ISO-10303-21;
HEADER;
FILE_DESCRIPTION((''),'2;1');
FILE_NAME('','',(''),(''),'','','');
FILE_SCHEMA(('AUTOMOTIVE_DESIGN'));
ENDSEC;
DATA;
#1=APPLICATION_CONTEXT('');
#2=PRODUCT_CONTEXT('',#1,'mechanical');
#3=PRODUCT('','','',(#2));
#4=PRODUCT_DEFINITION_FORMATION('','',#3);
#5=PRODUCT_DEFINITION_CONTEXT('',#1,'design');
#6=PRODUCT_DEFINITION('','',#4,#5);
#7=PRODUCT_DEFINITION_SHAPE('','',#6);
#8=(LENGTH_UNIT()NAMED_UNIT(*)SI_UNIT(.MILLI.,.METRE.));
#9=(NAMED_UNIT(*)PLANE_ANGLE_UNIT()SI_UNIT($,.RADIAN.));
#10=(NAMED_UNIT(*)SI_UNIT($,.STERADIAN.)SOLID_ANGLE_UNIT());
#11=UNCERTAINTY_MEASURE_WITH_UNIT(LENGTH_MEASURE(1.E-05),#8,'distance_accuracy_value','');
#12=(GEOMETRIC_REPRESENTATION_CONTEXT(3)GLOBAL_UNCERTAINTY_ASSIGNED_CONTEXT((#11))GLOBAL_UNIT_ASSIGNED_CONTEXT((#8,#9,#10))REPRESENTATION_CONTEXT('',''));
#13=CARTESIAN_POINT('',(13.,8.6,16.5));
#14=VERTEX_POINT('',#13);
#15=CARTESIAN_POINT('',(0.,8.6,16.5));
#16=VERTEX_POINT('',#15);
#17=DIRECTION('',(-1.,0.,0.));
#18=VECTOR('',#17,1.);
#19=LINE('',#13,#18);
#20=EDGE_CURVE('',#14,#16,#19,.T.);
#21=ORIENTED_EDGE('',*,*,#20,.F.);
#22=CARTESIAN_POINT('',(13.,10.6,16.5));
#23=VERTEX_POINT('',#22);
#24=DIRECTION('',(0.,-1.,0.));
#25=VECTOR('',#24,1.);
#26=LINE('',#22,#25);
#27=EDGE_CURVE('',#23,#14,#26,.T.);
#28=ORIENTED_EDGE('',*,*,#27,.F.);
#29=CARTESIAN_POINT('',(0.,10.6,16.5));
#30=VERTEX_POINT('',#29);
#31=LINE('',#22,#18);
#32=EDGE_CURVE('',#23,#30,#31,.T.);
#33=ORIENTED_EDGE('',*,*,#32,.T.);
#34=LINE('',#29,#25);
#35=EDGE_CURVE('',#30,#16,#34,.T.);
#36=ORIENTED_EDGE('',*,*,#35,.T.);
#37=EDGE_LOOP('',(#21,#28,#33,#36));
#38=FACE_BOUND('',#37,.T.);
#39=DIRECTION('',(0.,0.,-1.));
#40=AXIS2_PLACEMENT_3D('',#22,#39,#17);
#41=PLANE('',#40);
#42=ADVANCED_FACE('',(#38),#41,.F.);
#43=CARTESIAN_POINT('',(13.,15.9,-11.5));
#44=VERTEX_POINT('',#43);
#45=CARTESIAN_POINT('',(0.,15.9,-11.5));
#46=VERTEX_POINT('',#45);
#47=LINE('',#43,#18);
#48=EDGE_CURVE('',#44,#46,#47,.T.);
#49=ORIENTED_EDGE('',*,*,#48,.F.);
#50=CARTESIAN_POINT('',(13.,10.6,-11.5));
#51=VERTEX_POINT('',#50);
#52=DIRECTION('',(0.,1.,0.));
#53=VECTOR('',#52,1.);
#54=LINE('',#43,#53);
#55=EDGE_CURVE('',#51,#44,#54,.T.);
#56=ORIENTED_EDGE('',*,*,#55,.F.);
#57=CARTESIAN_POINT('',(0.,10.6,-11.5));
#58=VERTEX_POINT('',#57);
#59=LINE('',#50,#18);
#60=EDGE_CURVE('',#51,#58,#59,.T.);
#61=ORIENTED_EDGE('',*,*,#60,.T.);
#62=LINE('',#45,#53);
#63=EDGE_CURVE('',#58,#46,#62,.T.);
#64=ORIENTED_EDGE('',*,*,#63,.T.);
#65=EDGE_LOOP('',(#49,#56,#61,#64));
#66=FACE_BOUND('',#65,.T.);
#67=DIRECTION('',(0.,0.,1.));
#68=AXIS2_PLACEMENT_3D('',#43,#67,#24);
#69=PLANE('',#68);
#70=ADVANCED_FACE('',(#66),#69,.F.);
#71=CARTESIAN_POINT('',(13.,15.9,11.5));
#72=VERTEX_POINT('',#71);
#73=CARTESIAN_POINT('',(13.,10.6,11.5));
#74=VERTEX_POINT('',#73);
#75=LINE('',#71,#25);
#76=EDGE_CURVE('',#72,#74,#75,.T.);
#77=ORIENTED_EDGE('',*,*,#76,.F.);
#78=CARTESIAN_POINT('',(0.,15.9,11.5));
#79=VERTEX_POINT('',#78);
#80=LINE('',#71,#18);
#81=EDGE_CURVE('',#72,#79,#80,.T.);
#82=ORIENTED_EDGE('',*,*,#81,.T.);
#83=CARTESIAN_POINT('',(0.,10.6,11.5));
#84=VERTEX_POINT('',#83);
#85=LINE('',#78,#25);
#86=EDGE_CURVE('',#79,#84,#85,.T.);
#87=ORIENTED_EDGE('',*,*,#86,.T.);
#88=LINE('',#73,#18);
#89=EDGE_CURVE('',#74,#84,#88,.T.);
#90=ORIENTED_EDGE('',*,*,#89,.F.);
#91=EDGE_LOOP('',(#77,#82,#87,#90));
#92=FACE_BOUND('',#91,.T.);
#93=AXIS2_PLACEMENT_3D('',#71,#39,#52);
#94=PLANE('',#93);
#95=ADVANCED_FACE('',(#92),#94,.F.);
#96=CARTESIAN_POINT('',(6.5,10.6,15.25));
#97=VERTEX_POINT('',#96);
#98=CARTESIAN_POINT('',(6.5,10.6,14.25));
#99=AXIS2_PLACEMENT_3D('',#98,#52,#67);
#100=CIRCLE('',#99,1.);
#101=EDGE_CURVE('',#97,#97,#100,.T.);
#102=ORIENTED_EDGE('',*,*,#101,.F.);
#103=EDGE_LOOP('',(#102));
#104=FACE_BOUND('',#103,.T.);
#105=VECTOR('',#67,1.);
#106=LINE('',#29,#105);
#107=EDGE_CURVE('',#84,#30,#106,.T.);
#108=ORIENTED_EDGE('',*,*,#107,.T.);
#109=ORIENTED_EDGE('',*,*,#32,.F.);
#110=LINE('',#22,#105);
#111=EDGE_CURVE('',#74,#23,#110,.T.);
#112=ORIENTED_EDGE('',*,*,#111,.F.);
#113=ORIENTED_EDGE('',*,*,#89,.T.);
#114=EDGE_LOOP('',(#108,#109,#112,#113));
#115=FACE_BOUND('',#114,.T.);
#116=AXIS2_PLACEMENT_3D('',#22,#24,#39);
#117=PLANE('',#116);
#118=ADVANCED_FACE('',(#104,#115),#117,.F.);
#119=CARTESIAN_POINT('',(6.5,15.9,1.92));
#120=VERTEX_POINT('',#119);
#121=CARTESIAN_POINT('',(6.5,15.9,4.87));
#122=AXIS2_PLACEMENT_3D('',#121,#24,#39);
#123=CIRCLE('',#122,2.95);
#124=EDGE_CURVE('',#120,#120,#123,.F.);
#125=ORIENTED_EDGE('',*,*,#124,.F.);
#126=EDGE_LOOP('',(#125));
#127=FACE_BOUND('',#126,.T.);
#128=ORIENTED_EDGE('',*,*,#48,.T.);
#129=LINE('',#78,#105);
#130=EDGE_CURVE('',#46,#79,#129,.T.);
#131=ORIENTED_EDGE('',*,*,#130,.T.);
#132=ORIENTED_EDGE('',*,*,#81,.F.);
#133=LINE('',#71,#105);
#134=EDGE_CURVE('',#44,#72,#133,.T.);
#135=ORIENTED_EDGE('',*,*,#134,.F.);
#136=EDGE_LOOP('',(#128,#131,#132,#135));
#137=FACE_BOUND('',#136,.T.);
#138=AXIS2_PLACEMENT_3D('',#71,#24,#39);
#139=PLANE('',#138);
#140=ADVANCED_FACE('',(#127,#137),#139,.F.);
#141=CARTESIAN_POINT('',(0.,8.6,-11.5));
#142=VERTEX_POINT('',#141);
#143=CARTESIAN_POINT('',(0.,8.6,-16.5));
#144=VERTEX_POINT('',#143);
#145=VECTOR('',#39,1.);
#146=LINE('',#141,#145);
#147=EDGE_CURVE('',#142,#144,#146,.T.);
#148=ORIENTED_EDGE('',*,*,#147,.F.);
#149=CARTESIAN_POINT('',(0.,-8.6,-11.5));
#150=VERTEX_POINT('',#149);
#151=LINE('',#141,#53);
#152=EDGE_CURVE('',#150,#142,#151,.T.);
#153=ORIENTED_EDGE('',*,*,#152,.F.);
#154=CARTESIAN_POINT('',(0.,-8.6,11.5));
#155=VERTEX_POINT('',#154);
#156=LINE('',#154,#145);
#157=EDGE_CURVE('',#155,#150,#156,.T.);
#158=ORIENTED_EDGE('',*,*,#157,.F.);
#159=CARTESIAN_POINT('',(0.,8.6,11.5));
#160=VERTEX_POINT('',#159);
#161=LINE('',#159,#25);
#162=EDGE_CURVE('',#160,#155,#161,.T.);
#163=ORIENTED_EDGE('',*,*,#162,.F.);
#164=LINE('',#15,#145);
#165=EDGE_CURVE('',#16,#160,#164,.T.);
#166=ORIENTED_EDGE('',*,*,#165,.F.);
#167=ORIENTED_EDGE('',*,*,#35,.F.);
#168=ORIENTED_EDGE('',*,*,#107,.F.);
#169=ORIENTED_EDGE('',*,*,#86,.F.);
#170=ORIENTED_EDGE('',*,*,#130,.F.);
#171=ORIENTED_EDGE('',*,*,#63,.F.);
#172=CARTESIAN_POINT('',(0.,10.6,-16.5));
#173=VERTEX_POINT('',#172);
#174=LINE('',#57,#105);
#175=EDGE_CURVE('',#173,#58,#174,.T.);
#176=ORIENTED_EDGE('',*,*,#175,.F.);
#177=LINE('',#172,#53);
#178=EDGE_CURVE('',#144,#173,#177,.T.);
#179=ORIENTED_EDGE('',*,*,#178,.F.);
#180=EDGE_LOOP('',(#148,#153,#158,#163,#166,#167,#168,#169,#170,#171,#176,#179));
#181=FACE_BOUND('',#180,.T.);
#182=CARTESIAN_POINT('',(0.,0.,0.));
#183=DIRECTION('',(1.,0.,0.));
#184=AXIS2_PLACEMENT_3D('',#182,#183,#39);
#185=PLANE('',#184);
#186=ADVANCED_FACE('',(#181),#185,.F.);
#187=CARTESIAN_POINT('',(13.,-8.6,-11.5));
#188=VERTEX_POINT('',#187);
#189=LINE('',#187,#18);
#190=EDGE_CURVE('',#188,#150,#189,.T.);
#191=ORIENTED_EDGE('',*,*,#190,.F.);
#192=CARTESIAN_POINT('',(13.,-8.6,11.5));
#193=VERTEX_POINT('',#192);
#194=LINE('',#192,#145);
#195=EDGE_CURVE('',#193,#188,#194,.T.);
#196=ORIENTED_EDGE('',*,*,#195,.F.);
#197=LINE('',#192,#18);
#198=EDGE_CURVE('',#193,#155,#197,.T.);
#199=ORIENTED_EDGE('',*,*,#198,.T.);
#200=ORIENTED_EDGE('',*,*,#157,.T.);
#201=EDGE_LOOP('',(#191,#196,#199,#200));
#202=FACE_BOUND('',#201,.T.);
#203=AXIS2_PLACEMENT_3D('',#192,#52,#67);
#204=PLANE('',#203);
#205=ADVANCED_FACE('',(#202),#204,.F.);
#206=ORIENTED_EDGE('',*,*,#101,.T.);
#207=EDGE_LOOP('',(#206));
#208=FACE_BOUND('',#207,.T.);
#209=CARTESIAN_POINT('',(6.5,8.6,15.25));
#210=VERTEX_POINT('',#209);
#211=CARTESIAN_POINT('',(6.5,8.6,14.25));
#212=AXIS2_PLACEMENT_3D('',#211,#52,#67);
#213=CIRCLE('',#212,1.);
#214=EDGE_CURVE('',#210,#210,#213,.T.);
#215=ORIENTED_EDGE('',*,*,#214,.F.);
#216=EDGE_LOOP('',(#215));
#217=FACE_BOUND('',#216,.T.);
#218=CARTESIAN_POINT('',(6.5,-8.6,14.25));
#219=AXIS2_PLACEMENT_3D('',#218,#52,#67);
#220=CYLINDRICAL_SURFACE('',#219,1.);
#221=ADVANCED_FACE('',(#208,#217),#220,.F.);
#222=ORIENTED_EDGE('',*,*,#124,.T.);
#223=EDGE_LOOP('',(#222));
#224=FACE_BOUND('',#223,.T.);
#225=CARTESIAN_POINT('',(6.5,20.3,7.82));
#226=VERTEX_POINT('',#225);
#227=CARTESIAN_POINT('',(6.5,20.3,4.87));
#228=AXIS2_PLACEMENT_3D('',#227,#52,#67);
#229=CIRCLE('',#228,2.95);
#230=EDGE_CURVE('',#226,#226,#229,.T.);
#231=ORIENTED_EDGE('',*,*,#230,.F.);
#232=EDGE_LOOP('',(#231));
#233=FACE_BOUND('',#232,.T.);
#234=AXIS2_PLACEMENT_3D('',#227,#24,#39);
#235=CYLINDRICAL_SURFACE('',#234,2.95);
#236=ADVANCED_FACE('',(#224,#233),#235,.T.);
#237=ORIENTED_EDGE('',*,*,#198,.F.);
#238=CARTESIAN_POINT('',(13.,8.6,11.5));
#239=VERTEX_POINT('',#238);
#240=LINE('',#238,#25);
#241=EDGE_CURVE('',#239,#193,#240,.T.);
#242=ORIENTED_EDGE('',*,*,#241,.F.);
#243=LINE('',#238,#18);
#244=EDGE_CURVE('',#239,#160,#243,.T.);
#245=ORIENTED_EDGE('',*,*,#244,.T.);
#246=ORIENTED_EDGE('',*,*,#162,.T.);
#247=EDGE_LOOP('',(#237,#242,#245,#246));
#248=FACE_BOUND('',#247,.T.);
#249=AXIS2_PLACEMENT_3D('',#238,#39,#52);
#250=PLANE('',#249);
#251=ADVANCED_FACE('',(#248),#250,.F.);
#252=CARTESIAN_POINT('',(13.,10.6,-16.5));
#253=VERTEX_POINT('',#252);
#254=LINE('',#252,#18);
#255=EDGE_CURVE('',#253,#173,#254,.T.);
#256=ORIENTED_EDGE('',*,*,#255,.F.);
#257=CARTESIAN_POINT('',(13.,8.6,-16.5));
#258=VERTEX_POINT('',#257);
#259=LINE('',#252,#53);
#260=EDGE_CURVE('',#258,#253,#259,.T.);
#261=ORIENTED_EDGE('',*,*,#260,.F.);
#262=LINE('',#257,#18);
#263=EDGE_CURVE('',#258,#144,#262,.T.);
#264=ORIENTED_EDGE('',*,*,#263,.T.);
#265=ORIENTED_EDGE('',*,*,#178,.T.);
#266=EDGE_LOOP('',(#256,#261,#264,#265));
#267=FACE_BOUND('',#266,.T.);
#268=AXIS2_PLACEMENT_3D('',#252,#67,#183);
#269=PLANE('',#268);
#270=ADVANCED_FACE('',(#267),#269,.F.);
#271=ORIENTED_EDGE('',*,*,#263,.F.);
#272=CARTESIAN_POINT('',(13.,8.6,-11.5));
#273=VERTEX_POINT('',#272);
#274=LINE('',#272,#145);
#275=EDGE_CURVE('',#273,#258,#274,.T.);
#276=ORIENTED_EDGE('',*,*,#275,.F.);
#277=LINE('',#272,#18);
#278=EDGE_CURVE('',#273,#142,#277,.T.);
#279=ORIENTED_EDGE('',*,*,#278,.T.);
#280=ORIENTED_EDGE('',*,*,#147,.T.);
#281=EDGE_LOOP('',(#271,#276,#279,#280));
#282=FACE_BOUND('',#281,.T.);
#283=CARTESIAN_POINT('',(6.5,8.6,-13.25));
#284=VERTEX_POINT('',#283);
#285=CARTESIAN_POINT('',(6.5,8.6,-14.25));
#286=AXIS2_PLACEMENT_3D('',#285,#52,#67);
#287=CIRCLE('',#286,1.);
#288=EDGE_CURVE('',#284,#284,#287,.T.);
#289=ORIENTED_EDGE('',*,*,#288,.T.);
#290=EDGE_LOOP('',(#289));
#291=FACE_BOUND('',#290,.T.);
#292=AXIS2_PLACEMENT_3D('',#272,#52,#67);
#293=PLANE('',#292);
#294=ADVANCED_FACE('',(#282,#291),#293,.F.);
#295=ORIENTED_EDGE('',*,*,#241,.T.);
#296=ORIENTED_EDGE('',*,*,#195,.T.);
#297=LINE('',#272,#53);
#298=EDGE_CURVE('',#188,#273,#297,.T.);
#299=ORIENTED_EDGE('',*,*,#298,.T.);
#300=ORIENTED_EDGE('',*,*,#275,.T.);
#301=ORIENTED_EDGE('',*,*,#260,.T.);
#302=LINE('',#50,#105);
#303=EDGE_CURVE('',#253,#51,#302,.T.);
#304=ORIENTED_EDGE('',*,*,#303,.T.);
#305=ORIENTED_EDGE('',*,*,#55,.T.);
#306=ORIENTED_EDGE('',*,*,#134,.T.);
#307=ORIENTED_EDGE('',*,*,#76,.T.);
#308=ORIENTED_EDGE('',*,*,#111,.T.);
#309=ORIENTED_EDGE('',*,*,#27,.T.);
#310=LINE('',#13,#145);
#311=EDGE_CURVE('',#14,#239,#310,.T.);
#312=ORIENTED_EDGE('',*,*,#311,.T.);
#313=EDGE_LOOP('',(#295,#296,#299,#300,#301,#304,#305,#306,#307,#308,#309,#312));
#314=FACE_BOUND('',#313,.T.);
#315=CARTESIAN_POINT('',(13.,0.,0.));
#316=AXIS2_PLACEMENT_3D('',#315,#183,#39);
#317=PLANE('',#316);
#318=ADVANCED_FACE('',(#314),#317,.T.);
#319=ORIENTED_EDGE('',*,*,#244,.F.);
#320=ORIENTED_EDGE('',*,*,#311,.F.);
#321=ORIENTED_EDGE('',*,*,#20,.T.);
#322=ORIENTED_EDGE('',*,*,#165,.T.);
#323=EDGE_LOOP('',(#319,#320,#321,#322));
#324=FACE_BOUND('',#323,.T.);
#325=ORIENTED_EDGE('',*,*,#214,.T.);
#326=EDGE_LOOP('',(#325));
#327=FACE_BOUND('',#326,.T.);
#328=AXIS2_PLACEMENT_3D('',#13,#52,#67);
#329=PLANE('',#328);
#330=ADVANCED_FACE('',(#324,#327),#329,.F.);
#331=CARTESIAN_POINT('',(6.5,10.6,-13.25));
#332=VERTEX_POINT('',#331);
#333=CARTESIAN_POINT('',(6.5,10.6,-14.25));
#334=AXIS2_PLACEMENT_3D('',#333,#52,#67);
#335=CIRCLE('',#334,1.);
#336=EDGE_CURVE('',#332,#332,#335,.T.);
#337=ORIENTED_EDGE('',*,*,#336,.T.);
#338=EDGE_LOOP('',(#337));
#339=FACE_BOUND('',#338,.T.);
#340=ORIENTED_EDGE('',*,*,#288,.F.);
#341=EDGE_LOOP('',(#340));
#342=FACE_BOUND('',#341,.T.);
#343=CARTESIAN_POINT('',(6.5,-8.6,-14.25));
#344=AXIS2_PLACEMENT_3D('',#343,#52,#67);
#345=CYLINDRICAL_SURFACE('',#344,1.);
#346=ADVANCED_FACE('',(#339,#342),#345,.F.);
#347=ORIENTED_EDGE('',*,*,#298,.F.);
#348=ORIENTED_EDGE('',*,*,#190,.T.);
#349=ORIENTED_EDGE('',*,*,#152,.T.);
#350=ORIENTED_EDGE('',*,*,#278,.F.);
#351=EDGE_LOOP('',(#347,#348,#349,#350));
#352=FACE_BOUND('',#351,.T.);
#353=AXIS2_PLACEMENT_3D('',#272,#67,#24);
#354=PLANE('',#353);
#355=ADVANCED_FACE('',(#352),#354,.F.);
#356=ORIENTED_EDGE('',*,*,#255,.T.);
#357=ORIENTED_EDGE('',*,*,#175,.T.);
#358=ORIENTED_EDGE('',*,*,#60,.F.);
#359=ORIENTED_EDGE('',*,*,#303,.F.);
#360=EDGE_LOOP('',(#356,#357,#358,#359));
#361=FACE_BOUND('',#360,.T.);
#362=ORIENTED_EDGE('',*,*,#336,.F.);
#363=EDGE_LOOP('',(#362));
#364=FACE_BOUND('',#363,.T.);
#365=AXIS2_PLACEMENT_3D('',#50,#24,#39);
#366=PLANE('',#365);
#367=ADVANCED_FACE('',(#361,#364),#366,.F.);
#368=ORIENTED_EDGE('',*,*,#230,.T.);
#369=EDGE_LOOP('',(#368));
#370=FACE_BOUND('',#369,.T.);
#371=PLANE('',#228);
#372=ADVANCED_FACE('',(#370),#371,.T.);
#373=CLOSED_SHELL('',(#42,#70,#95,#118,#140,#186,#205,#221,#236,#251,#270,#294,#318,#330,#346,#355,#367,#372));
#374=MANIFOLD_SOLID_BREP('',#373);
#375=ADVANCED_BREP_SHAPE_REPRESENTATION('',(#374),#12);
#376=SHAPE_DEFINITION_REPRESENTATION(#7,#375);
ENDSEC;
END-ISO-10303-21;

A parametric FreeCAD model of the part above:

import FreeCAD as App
import Part
import Sketcher
from FreeCAD import Vector
Q = App.Units.Quantity

doc = App.newDocument("Part")
body = doc.addObject("PartDesign::Body", "Body")

# Sketch on YZ plane
sketch1 = doc.addObject("Sketcher::SketchObject", "Sketch")
body.addObject(sketch1)
sketch1.AttachmentSupport = (doc.YZ_Plane, [""])
sketch1.MapMode = "FlatFace"
sketch1.addGeometry([
    Part.LineSegment(Vector(10.6, -16.5, 0), Vector(10.6, -11.5, 0)),  # 0
    Part.LineSegment(Vector(10.6, -11.5, 0), Vector(15.9, -11.5, 0)),  # 1
    Part.LineSegment(Vector(15.9, -11.5, 0), Vector(15.9, 11.5, 0)),  # 2
    Part.LineSegment(Vector(15.9, 11.5, 0), Vector(10.6, 11.5, 0)),  # 3
    Part.LineSegment(Vector(10.6, 11.5, 0), Vector(10.6, 16.5, 0)),  # 4
    Part.LineSegment(Vector(10.6, 16.5, 0), Vector(8.6, 16.5, 0)),  # 5
    Part.LineSegment(Vector(8.6, 16.5, 0), Vector(8.6, 11.5, 0)),  # 6
    Part.LineSegment(Vector(8.6, 11.5, 0), Vector(-8.6, 11.5, 0)),  # 7
    Part.LineSegment(Vector(-8.6, 11.5, 0), Vector(-8.6, -11.5, 0)),  # 8
    Part.LineSegment(Vector(-8.6, -11.5, 0), Vector(8.6, -11.5, 0)),  # 9
    Part.LineSegment(Vector(8.6, -11.5, 0), Vector(8.6, -16.5, 0)),  # 10
    Part.LineSegment(Vector(8.6, -16.5, 0), Vector(10.6, -16.5, 0)),  # 11
], False)
sketch1.addConstraint([
    Sketcher.Constraint("Coincident", 0, 2, 1, 1),
    Sketcher.Constraint("Coincident", 1, 2, 2, 1),
    Sketcher.Constraint("Coincident", 2, 2, 3, 1),
    Sketcher.Constraint("Coincident", 3, 2, 4, 1),
    Sketcher.Constraint("Coincident", 4, 2, 5, 1),
    Sketcher.Constraint("Coincident", 5, 2, 6, 1),
    Sketcher.Constraint("Coincident", 6, 2, 7, 1),
    Sketcher.Constraint("Coincident", 7, 2, 8, 1),
    Sketcher.Constraint("Coincident", 8, 2, 9, 1),
    Sketcher.Constraint("Coincident", 9, 2, 10, 1),
    Sketcher.Constraint("Coincident", 10, 2, 11, 1),
    Sketcher.Constraint("Coincident", 11, 2, 0, 1),
    Sketcher.Constraint("Vertical", 0),
    Sketcher.Constraint("Horizontal", 1),
    Sketcher.Constraint("Vertical", 2),
    Sketcher.Constraint("Horizontal", 3),
    Sketcher.Constraint("Vertical", 4),
    Sketcher.Constraint("Horizontal", 5),
    Sketcher.Constraint("Vertical", 6),
    Sketcher.Constraint("Horizontal", 7),
    Sketcher.Constraint("Vertical", 8),
    Sketcher.Constraint("Horizontal", 9),
    Sketcher.Constraint("Vertical", 10),
    Sketcher.Constraint("Horizontal", 11),
    Sketcher.Constraint("Symmetric", 6, 2, 8, 2, -1, 1),
    Sketcher.Constraint("Symmetric", 0, 2, 3, 2, -1),
    Sketcher.Constraint("Symmetric", 5, 2, 10, 2, -1),
    Sketcher.Constraint("Horizontal", 3, 2, 6, 2),
    Sketcher.Constraint("DistanceX", 5, 2, 5, 1, Q("2 mm")),
    Sketcher.Constraint("DistanceY", 0, 1, 0, 2, Q("5 mm")),
    Sketcher.Constraint("DistanceY", 2, 1, 2, 2, Q("23 mm")),
    Sketcher.Constraint("DistanceX", 1, 1, 1, 2, Q("5.3 mm")),
    Sketcher.Constraint("DistanceX", 7, 2, 7, 1, Q("17.2 mm")),
])
pad1 = doc.addObject("PartDesign::Pad", "Pad")
body.addObject(pad1)
pad1.Profile = sketch1
pad1.Length = 13

# Sketch on XZ plane
sketch2 = doc.addObject("Sketcher::SketchObject", "Sketch001")
body.addObject(sketch2)
sketch2.AttachmentSupport = (doc.XZ_Plane, [""])
sketch2.MapMode = "FlatFace"
sketch2.AttachmentOffset = App.Placement(Vector(0, 0, -10.6), App.Rotation())
sketch2.addGeometry([
    Part.Circle(Vector(6.5, -14.2, 0), Vector(0, 0, 1), 1),
    Part.Circle(Vector(6.5, 14.2, 0), Vector(0, 0, 1), 1),
], False)
sketch2.addConstraint([
    Sketcher.Constraint("Equal", 0, 1),
    Sketcher.Constraint("Symmetric", 0, 3, 1, 3, -1),
    Sketcher.Constraint("Diameter", 0, Q("2 mm")),
    Sketcher.Constraint("DistanceX", -1, 1, 0, 3, Q("6.5 mm")),
    Sketcher.Constraint("DistanceY", 0, 3, 1, 3, Q("28.5 mm")),
])
pocket1 = doc.addObject("PartDesign::Pocket", "Pocket")
body.addObject(pocket1)
pocket1.Profile = sketch2
pocket1.Type = "ThroughAll"
pocket1.Reversed = True

# Sketch on XZ plane
sketch3 = doc.addObject("Sketcher::SketchObject", "Sketch002")
body.addObject(sketch3)
sketch3.AttachmentSupport = (doc.XZ_Plane, [""])
sketch3.MapMode = "FlatFace"
sketch3.AttachmentOffset = App.Placement(Vector(0, 0, -15.9), App.Rotation())
sketch3.addGeometry(Part.Circle(Vector(6.5, 4.9, 0), Vector(0, 0, 1), 3), False)
sketch3.addConstraint([
    Sketcher.Constraint("Diameter", 0, Q("5.9 mm")),
    Sketcher.Constraint("DistanceX", -1, 1, 0, 3, Q("6.5 mm")),
    Sketcher.Constraint("DistanceY", -1, 1, 0, 3, Q("4.87 mm")),
])
pad2 = doc.addObject("PartDesign::Pad", "Pad001")
body.addObject(pad2)
pad2.Profile = sketch3
pad2.Length = 4.4
pad2.Reversed = True

doc.recompute()
